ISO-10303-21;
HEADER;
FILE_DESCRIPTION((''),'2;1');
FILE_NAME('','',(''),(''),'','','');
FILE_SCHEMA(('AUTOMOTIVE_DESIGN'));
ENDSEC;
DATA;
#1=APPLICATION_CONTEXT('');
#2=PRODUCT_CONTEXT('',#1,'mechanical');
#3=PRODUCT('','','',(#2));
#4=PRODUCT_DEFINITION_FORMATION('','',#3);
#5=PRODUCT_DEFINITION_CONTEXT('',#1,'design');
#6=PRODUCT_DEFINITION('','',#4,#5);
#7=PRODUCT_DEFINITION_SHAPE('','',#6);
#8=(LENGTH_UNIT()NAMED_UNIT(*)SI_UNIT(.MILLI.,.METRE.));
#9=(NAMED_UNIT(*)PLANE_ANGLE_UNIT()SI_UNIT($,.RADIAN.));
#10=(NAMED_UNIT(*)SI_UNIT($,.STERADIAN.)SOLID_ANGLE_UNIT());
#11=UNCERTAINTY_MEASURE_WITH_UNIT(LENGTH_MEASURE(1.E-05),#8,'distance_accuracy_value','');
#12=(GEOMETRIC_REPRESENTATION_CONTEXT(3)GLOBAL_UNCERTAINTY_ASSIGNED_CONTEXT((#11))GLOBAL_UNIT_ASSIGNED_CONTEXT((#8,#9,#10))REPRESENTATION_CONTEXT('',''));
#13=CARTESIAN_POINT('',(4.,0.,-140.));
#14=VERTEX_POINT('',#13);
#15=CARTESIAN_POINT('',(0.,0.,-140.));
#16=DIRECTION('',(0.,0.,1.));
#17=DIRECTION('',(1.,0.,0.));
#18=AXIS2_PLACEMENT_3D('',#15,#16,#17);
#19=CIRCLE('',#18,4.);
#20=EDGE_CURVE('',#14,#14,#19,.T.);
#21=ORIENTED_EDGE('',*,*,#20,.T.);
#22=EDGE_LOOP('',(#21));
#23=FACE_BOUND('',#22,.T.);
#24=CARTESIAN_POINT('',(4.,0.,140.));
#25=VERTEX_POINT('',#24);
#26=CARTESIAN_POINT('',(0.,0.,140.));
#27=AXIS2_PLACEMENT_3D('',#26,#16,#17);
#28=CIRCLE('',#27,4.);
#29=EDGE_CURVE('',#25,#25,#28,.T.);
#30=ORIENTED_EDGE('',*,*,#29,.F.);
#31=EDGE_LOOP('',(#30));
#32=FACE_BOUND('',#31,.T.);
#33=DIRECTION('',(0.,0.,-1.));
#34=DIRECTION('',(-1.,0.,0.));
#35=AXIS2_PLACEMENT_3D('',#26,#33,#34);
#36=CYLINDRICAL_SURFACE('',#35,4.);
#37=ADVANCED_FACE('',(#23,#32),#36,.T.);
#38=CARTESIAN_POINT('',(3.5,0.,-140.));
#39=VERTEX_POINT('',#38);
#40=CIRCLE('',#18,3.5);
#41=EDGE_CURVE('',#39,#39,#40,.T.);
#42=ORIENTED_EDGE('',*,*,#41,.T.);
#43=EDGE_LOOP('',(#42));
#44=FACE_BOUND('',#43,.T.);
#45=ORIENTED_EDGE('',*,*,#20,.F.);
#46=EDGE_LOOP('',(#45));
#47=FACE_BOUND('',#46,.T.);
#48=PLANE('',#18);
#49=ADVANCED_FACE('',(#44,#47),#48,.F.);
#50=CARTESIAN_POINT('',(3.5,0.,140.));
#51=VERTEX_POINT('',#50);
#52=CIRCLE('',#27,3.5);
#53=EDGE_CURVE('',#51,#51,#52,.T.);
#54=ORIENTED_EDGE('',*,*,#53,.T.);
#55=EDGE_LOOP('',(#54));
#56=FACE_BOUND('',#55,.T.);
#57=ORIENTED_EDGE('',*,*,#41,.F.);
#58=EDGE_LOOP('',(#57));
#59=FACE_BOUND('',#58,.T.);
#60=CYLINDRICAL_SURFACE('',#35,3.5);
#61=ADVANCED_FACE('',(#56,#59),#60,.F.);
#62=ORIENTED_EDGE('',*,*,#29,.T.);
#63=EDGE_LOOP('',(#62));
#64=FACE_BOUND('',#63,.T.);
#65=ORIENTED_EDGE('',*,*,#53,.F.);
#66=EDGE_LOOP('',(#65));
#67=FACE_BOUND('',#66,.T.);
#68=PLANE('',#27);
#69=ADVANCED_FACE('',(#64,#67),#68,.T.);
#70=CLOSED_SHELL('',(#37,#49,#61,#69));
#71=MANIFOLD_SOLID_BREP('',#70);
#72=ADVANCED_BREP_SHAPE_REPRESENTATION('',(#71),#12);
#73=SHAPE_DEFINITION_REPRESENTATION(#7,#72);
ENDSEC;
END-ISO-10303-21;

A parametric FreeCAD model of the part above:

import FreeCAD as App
import Part
import Sketcher

doc = App.newDocument("Part")
body = doc.addObject("PartDesign::Body", "Body")

# Sketch on XY plane
sketch1 = body.newObject("Sketcher::SketchObject", "Sketch")
sketch1.AttachmentSupport = (doc.getObject("XY_Plane"), [""])
sketch1.MapMode = "FlatFace"
sketch1.addGeometry([
    Part.Circle(App.Vector(0, 0, 0), App.Vector(0, 0, 1), 4),
    Part.Circle(App.Vector(0, 0, 0), App.Vector(0, 0, 1), 3.5),
], False)
sketch1.addConstraint([
    Sketcher.Constraint("Coincident", 0, 3, -1, 1),
    Sketcher.Constraint("Coincident", 1, 3, -1, 1),
    Sketcher.Constraint("Diameter", 0, 8.0),
    Sketcher.Constraint("Diameter", 1, 7.0),
])
pad1 = body.newObject("PartDesign::Pad", "Pad")
pad1.Profile = sketch1
pad1.Length = 280
pad1.Midplane = True

doc.recompute()
